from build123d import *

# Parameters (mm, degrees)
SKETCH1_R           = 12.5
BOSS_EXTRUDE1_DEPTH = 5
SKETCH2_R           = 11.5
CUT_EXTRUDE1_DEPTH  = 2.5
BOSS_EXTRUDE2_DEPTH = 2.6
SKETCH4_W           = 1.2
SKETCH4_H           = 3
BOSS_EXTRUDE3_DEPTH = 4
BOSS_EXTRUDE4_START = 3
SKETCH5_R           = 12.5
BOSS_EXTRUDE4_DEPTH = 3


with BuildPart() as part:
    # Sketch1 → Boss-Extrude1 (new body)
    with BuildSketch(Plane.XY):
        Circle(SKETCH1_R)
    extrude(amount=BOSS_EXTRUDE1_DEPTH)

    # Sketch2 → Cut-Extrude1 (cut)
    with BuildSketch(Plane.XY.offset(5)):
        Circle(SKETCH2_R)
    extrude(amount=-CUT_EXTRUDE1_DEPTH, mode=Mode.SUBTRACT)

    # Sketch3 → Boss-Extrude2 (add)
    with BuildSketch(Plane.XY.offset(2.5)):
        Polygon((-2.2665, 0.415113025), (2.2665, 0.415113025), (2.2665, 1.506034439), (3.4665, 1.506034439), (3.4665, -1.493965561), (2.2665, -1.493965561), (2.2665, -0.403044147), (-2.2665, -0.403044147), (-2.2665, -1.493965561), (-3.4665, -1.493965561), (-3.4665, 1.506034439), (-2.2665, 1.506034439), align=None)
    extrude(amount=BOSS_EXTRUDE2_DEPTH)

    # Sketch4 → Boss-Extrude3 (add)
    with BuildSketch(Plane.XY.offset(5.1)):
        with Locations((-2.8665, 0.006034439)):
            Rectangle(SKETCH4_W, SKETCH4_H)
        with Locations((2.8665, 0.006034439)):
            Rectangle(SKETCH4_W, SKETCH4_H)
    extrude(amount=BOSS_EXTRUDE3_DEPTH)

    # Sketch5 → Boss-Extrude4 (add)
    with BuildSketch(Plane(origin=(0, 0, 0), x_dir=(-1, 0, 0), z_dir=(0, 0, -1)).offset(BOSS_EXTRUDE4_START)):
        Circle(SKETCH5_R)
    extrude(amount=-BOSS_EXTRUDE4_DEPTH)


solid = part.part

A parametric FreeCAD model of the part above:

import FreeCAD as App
import Part
import Sketcher

V = App.Vector


def add_polygon(sketch, points):
    """Adds a closed chain of lines whose ends are joined by coincident constraints."""
    first, n = sketch.GeometryCount, len(points)
    for a, b in zip(points, points[1:] + points[:1]):
        sketch.addGeometry(Part.LineSegment(App.Vector(*a, 0), App.Vector(*b, 0)), False)
    for i in range(n):
        sketch.addConstraint(Sketcher.Constraint("Coincident", first + i, 2, first + (i + 1) % n, 1))

doc = App.newDocument("Part")
params = doc.addObject("Spreadsheet::Sheet", "Params")
for row, (alias, value) in enumerate([
    ("sketch1_diameter", "25 mm"),
    ("pad1_length", "5 mm"),
    ("sketch2_diameter", "23 mm"),
    ("pocket1_length", "2.5 mm"),
    ("sketch3_height", "3 mm"),
    ("sketch3_width", "1.2 mm"),
    ("pad2_length", "2.6 mm"),
    ("sketch4_height", "3 mm"),
    ("sketch4_width", "1.2 mm"),
    ("pad3_length", "4 mm"),
    ("sketch5_diameter", "25 mm"),
    ("pad4_length", "3 mm"),
], start=1):
    params.set(f"A{row}", alias)
    params.set(f"B{row}", "=" + value)
    params.setAlias(f"B{row}", alias)

body = doc.addObject("PartDesign::Body", "Body")

# Sketch on XY plane
sketch1 = body.newObject("Sketcher::SketchObject", "Sketch")
sketch1.AttachmentSupport = (doc.getObject("XY_Plane"), [""])
sketch1.MapMode = "FlatFace"
sketch1.addGeometry(Part.Circle(V(0, 0, 0), V(0, 0, 1), 12), False)
sketch1.addConstraint([
    Sketcher.Constraint("Coincident", 0, 3, -1, 1),
    Sketcher.Constraint("Diameter", 0, 25.0),
])
sketch1.setExpression("Constraints[1]", "Params.sketch1_diameter")
pad1 = body.newObject("PartDesign::Pad", "Pad")
pad1.Profile = sketch1
pad1.setExpression("Length", "Params.pad1_length")

# Sketch on XY plane
sketch2 = body.newObject("Sketcher::SketchObject", "Sketch001")
sketch2.AttachmentSupport = (doc.getObject("XY_Plane"), [""])
sketch2.MapMode = "FlatFace"
sketch2.AttachmentOffset = App.Placement(V(0, 0, 5), App.Rotation())
sketch2.addGeometry(Part.Circle(V(0, 0, 0), V(0, 0, 1), 12), False)
sketch2.addConstraint([
    Sketcher.Constraint("Coincident", 0, 3, -1, 1),
    Sketcher.Constraint("Diameter", 0, 23.0),
])
sketch2.setExpression("Constraints[1]", "Params.sketch2_diameter")
pocket1 = body.newObject("PartDesign::Pocket", "Pocket")
pocket1.Profile = sketch2
pocket1.setExpression("Length", "Params.pocket1_length")

# Sketch on XY plane
sketch3 = body.newObject("Sketcher::SketchObject", "Sketch002")
sketch3.AttachmentSupport = (doc.getObject("XY_Plane"), [""])
sketch3.MapMode = "FlatFace"
sketch3.AttachmentOffset = App.Placement(V(0, 0, 2.5), App.Rotation())
add_polygon(sketch3, [(2.3, 0.4), (-2.3, 0.4), (-2.3, 1.5), (-3.5, 1.5), (-3.5, -1.5), (-2.3, -1.5), (-2.3, -0.4), (2.3, -0.4), (2.3, -1.5), (3.5, -1.5), (3.5, 1.5), (2.3, 1.5)])  # lines 0-11
sketch3.addConstraint([
    Sketcher.Constraint("Horizontal", 0),
    Sketcher.Constraint("Vertical", 1),
    Sketcher.Constraint("Horizontal", 2),
    Sketcher.Constraint("Vertical", 3),
    Sketcher.Constraint("Horizontal", 4),
    Sketcher.Constraint("Vertical", 5),
    Sketcher.Constraint("Horizontal", 6),
    Sketcher.Constraint("Vertical", 7),
    Sketcher.Constraint("Horizontal", 8),
    Sketcher.Constraint("Vertical", 9),
    Sketcher.Constraint("Horizontal", 10),
    Sketcher.Constraint("Vertical", 11),
    Sketcher.Constraint("Symmetric", 4, 2, 7, 2, -2),
    Sketcher.Constraint("Symmetric", 2, 2, 9, 2, -2),
    Sketcher.Constraint("Vertical", 1, 2, 4, 2),
    Sketcher.Constraint("Vertical", 7, 2, 10, 2),
    Sketcher.Constraint("Equal", 1, 5),
    Sketcher.Constraint("DistanceY", 3, 2, 3, 1, 3.0),
    Sketcher.Constraint("DistanceX", 2, 2, 2, 1, 1.2),
    Sketcher.Constraint("DistanceX", 0, 2, 0, 1, 4.533),
    Sketcher.Constraint("DistanceY", 1, 1, 1, 2, 1.090921),
    Sketcher.Constraint("DistanceY", -1, 1, 0, 2, 0.415113),
])
sketch3.setExpression("Constraints[29]", "Params.sketch3_height")
sketch3.setExpression("Constraints[30]", "Params.sketch3_width")
pad2 = body.newObject("PartDesign::Pad", "Pad001")
pad2.Profile = sketch3
pad2.setExpression("Length", "Params.pad2_length")

# Sketch on XY plane
sketch4 = body.newObject("Sketcher::SketchObject", "Sketch003")
sketch4.AttachmentSupport = (doc.getObject("XY_Plane"), [""])
sketch4.MapMode = "FlatFace"
sketch4.AttachmentOffset = App.Placement(V(0, 0, 5.1), App.Rotation())
add_polygon(sketch4, [(-3.5, 1.5), (-3.5, -1.5), (-2.3, -1.5), (-2.3, 1.5)])  # lines 0-3
add_polygon(sketch4, [(2.3, 1.5), (2.3, -1.5), (3.5, -1.5), (3.5, 1.5)])  # lines 4-7
sketch4.addConstraint([
    Sketcher.Constraint("Vertical", 0),
    Sketcher.Constraint("Horizontal", 1),
    Sketcher.Constraint("Vertical", 2),
    Sketcher.Constraint("Horizontal", 3),
    Sketcher.Constraint("Vertical", 4),
    Sketcher.Constraint("Horizontal", 5),
    Sketcher.Constraint("Vertical", 6),
    Sketcher.Constraint("Horizontal", 7),
    Sketcher.Constraint("Symmetric", 1, 2, 4, 2, -2),
    Sketcher.Constraint("Symmetric", 3, 2, 6, 2, -2),
    Sketcher.Constraint("DistanceY", 0, 2, 0, 1, 3.0),
    Sketcher.Constraint("DistanceX", 1, 1, 1, 2, 1.2),
    Sketcher.Constraint("DistanceX", 1, 2, 4, 2, 4.533),
    Sketcher.Constraint("DistanceY", 0, 2, -1, 1, 1.493966),
])
sketch4.setExpression("Constraints[18]", "Params.sketch4_height")
sketch4.setExpression("Constraints[19]", "Params.sketch4_width")
pad3 = body.newObject("PartDesign::Pad", "Pad002")
pad3.Profile = sketch4
pad3.setExpression("Length", "Params.pad3_length")

# Sketch on XY plane
sketch5 = body.newObject("Sketcher::SketchObject", "Sketch004")
sketch5.AttachmentSupport = (doc.getObject("XY_Plane"), [""])
sketch5.MapMode = "FlatFace"
sketch5.AttachmentOffset = App.Placement(V(0, 0, -3), App.Rotation())
sketch5.addGeometry(Part.Circle(V(0, 0, 0), V(0, 0, 1), 12), False)
sketch5.addConstraint([
    Sketcher.Constraint("Coincident", 0, 3, -1, 1),
    Sketcher.Constraint("Diameter", 0, 25.0),
])
sketch5.setExpression("Constraints[1]", "Params.sketch5_diameter")
pad4 = body.newObject("PartDesign::Pad", "Pad003")
pad4.Profile = sketch5
pad4.setExpression("Length", "Params.pad4_length")

doc.recompute()
